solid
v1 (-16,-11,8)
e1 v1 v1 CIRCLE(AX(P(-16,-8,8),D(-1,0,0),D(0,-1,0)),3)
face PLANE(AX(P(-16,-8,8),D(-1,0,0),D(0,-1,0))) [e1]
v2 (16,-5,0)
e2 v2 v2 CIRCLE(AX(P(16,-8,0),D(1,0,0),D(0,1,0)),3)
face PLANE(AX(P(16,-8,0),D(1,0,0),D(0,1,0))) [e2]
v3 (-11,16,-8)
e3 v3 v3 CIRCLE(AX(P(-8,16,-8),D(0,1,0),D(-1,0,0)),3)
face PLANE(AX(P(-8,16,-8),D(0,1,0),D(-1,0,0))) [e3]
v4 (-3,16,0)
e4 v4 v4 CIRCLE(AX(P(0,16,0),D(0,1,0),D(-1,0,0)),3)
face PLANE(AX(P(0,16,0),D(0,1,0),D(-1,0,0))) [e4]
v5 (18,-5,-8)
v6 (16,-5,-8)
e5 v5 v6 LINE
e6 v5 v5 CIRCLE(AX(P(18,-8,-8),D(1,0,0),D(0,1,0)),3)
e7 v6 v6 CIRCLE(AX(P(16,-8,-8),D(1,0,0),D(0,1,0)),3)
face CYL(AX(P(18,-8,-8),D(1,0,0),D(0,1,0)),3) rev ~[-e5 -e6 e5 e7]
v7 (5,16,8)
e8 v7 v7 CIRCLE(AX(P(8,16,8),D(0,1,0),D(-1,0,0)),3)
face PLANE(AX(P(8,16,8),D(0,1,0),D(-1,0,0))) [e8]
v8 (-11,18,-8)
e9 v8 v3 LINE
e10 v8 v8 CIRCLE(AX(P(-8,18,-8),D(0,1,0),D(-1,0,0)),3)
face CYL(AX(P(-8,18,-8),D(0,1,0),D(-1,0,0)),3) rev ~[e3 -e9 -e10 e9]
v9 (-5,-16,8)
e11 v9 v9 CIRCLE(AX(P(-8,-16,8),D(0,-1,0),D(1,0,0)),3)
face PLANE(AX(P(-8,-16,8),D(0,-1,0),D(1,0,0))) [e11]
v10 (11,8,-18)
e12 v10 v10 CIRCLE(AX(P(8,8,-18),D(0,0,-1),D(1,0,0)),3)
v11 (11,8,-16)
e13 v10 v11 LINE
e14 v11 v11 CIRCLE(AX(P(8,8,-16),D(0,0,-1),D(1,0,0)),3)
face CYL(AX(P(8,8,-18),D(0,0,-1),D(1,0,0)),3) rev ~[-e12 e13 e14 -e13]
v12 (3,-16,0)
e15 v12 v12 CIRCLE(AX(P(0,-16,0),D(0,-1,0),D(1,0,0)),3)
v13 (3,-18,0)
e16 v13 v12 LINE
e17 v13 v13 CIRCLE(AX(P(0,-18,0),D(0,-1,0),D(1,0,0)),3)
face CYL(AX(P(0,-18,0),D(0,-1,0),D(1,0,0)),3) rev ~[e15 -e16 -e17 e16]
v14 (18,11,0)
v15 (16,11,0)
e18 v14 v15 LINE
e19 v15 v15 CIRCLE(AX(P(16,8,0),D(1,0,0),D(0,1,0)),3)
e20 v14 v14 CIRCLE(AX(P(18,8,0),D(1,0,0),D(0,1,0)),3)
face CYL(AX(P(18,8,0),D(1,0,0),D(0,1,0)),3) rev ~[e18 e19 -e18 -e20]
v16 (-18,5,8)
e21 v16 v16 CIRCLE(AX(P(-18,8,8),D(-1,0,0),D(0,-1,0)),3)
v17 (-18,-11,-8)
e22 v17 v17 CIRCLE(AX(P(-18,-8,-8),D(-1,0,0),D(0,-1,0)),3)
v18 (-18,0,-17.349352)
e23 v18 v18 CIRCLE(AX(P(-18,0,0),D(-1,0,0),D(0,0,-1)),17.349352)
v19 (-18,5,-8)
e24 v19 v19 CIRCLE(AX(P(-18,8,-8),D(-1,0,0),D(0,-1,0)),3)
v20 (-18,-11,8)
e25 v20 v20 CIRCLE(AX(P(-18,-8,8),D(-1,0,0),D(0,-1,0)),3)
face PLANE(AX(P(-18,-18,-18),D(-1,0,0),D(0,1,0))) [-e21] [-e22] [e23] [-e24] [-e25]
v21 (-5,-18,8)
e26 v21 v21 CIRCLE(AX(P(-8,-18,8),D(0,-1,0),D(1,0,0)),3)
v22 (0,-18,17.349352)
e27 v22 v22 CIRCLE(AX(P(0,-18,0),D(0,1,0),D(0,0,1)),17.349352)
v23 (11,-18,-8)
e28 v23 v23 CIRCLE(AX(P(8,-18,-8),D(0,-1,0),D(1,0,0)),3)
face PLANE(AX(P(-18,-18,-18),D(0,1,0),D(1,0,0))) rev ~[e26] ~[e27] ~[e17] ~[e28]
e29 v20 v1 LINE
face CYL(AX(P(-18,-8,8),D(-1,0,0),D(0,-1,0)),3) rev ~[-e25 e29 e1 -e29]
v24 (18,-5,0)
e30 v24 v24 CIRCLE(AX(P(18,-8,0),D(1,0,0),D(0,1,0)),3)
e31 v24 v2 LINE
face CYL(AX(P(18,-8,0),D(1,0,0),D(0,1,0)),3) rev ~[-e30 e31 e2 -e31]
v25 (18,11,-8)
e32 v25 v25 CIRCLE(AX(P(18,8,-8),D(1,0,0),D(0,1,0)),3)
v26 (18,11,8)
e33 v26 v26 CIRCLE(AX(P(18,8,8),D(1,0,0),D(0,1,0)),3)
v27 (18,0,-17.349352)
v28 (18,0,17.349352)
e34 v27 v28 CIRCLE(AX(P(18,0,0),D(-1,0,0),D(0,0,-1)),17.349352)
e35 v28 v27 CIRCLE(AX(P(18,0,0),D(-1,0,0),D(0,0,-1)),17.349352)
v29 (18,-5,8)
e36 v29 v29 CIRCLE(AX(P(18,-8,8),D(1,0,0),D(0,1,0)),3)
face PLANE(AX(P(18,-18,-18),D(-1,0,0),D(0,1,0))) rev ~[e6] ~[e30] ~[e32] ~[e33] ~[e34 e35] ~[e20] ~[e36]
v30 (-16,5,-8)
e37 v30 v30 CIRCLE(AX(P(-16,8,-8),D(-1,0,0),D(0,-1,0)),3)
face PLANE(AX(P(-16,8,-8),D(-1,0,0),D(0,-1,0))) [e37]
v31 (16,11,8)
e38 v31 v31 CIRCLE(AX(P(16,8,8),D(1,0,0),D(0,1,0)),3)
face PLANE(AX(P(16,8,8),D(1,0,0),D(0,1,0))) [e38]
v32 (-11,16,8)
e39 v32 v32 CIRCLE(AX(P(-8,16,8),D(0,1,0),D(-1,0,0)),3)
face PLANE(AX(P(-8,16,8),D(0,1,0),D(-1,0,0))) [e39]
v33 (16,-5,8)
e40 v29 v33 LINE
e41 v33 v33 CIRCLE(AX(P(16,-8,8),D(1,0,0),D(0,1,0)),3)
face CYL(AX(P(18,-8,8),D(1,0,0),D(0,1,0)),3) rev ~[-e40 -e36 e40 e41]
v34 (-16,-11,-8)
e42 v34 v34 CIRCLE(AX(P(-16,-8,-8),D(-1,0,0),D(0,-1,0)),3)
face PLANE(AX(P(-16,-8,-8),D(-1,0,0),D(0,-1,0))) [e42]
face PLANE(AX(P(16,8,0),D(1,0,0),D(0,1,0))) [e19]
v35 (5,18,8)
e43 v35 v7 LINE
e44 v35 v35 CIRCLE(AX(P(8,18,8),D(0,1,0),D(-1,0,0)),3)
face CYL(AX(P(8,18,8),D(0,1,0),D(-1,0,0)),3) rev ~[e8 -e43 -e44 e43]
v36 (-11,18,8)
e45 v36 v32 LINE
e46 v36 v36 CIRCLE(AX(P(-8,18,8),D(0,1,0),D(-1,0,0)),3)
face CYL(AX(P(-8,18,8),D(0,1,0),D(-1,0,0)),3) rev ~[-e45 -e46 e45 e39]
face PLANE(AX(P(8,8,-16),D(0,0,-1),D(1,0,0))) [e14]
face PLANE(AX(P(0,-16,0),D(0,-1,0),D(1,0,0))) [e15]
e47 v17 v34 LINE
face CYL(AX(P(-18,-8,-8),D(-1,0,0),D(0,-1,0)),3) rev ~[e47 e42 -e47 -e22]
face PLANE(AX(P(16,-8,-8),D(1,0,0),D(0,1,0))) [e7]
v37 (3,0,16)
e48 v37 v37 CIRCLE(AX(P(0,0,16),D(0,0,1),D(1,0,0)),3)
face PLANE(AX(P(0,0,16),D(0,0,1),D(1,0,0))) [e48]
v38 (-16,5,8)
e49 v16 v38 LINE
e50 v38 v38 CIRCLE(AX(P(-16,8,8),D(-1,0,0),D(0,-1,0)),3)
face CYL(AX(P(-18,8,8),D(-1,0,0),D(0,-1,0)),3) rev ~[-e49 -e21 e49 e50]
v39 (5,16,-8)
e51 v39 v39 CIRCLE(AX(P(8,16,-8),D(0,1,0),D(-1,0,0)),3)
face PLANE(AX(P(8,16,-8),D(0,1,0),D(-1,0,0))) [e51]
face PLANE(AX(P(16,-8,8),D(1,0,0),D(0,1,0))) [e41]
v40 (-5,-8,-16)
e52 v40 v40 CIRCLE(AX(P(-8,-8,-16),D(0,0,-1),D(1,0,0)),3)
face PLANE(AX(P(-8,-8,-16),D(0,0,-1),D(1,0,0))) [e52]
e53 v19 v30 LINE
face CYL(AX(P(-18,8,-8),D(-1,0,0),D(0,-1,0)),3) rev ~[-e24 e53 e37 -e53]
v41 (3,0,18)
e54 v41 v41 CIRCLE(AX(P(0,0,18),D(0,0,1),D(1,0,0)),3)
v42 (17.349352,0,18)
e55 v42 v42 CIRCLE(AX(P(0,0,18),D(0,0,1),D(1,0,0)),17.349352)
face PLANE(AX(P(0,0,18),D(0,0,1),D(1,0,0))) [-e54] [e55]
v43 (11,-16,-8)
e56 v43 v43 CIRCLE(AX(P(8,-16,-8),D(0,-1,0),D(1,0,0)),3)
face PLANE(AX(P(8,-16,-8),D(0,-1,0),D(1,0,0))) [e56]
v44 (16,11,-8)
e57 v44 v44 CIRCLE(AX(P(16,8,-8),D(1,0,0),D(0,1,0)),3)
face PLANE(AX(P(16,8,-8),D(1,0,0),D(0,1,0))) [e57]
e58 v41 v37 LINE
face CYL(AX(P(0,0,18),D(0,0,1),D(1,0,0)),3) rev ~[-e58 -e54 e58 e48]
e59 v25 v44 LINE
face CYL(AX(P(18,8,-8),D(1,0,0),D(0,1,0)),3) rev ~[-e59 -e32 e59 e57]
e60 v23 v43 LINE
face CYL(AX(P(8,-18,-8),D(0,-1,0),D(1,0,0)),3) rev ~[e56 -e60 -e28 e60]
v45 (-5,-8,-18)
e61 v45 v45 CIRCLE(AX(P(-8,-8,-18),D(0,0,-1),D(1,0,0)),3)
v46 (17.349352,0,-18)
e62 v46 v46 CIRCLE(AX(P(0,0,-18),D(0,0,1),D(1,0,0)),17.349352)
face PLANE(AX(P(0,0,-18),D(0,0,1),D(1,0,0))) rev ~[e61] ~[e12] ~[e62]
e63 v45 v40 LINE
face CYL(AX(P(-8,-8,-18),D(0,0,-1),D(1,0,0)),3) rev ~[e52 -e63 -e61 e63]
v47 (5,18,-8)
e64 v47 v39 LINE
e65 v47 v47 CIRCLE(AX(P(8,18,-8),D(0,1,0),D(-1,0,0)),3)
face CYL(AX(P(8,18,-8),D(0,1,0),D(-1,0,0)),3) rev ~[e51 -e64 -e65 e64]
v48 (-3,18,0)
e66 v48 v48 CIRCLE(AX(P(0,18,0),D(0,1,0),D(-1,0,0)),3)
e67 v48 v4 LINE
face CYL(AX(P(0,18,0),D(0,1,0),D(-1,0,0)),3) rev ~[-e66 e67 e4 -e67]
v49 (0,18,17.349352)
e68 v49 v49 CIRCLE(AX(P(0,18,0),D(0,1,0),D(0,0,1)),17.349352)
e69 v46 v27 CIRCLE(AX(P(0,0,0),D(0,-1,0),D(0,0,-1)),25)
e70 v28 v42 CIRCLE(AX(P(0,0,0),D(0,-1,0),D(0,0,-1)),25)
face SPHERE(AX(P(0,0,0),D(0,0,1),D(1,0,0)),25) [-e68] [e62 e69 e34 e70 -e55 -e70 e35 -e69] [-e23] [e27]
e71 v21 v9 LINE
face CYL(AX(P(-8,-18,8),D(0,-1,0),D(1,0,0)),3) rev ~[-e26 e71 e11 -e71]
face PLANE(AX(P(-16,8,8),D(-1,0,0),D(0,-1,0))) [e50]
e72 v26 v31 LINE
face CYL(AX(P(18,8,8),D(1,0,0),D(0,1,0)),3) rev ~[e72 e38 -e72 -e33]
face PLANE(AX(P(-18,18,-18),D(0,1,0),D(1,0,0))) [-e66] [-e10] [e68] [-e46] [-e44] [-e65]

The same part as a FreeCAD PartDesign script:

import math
import FreeCAD as App
import Part
import Sketcher
from FreeCAD import Vector

doc = App.newDocument("Part")
body = doc.addObject("PartDesign::Body", "Body")

# Sketch on XZ plane
sketch1 = body.newObject("Sketcher::SketchObject", "Sketch")
sketch1.AttachmentSupport = (doc.getObject("XZ_Plane"), [""])
sketch1.MapMode = "FlatFace"
sketch1.addGeometry([
    Part.ArcOfCircle(Part.Circle(Vector(0, 0, 0), Vector(0, 0, 1), 25), math.radians(-90), math.radians(90)),
    Part.LineSegment(Vector(0, 25, 0), Vector(0, -25, 0)),
], False)
sketch1.addConstraint([
    Sketcher.Constraint("Coincident", 0, 1, 1, 2),
    Sketcher.Constraint("Coincident", 1, 1, 0, 2),
    Sketcher.Constraint("Vertical", 1),
    Sketcher.Constraint("Coincident", 0, 3, -1, 1),
    Sketcher.Constraint("PointOnObject", 0, 1, -2),
    Sketcher.Constraint("Radius", 0, 25.0),
])
revolution = body.newObject("PartDesign::Revolution", "Revolution")
revolution.Profile = sketch1
revolution.ReferenceAxis = (sketch1, ["V_Axis"])
revolution.Angle = 360
body2 = doc.addObject("PartDesign::Body", "Body001")

# Sketch on XY plane
sketch2 = body2.newObject("Sketcher::SketchObject", "Sketch001")
sketch2.AttachmentSupport = (doc.getObject("XY_Plane001"), [""])
sketch2.MapMode = "FlatFace"
sketch2.AttachmentOffset = App.Placement(Vector(0, 0, -18), App.Rotation())
sketch2.addGeometry([
    Part.LineSegment(Vector(-18, 18, 0), Vector(-18, -18, 0)),
    Part.LineSegment(Vector(-18, -18, 0), Vector(18, -18, 0)),
    Part.LineSegment(Vector(18, -18, 0), Vector(18, 18, 0)),
    Part.LineSegment(Vector(18, 18, 0), Vector(-18, 18, 0)),
], False)
sketch2.addConstraint([
    Sketcher.Constraint("Coincident", 0, 2, 1, 1),
    Sketcher.Constraint("Coincident", 1, 2, 2, 1),
    Sketcher.Constraint("Coincident", 2, 2, 3, 1),
    Sketcher.Constraint("Coincident", 3, 2, 0, 1),
    Sketcher.Constraint("Vertical", 0),
    Sketcher.Constraint("Horizontal", 1),
    Sketcher.Constraint("Vertical", 2),
    Sketcher.Constraint("Horizontal", 3),
    Sketcher.Constraint("Symmetric", 0, 2, 2, 2, -1, 1),
    Sketcher.Constraint("Equal", 3, 0),
    Sketcher.Constraint("DistanceX", 1, 1, 1, 2, 36.0),
])
pad1 = body2.newObject("PartDesign::Pad", "Pad")
pad1.Profile = sketch2
pad1.Length = 36
doc.recompute()

boolean = body2.newObject("PartDesign::Boolean", "Boolean")
boolean.Type = "Common"
boolean.addObjects([body])

# Sketch on YZ plane
sketch3 = body2.newObject("Sketcher::SketchObject", "Sketch002")
sketch3.AttachmentSupport = (doc.getObject("YZ_Plane001"), [""])
sketch3.MapMode = "FlatFace"
sketch3.AttachmentOffset = App.Placement(Vector(0, 0, 18), App.Rotation())
sketch3.addGeometry([
    Part.Circle(Vector(-8, 8, 0), Vector(0, 0, 1), 3),  # 0
    Part.Circle(Vector(-8, -8, 0), Vector(0, 0, 1), 3),  # 1
    Part.Circle(Vector(8, 8, 0), Vector(0, 0, 1), 3),  # 2
    Part.Circle(Vector(8, -8, 0), Vector(0, 0, 1), 3),  # 3
    Part.Circle(Vector(-8, 0, 0), Vector(0, 0, 1), 3),  # 4
    Part.Circle(Vector(8, 0, 0), Vector(0, 0, 1), 3),  # 5
], False)
sketch3.addConstraint([
    Sketcher.Constraint("Equal", 0, 1),
    Sketcher.Constraint("Equal", 1, 2),
    Sketcher.Constraint("Equal", 2, 3),
    Sketcher.Constraint("Equal", 3, 4),
    Sketcher.Constraint("Equal", 4, 5),
    Sketcher.Constraint("Symmetric", 1, 3, 2, 3, -1, 1),
    Sketcher.Constraint("Symmetric", 0, 3, 3, 3, -1, 1),
    Sketcher.Constraint("Symmetric", 4, 3, 5, 3, -1, 1),
    Sketcher.Constraint("Symmetric", 0, 3, 2, 3, -2),
    Sketcher.Constraint("PointOnObject", 4, 3, -1),
    Sketcher.Constraint("Vertical", 1, 3, 4, 3),
    Sketcher.Constraint("Diameter", 0, 6.0),
    Sketcher.Constraint("DistanceX", 0, 3, -1, 1, 8.0),
    Sketcher.Constraint("DistanceY", -1, 1, 0, 3, 8.0),
])
pocket1 = body2.newObject("PartDesign::Pocket", "Pocket")
pocket1.Profile = sketch3
pocket1.Length = 2

# Sketch on XZ plane
sketch4 = body2.newObject("Sketcher::SketchObject", "Sketch003")
sketch4.AttachmentSupport = (doc.getObject("XZ_Plane001"), [""])
sketch4.MapMode = "FlatFace"
sketch4.AttachmentOffset = App.Placement(Vector(0, 0, -18), App.Rotation())
sketch4.addGeometry([
    Part.Circle(Vector(-8, 8, 0), Vector(0, 0, 1), 3),  # 0
    Part.Circle(Vector(8, 8, 0), Vector(0, 0, 1), 3),  # 1
    Part.Circle(Vector(8, -8, 0), Vector(0, 0, 1), 3),  # 2
    Part.Circle(Vector(-8, -8, 0), Vector(0, 0, 1), 3),  # 3
    Part.Circle(Vector(0, 0, 0), Vector(0, 0, 1), 3),  # 4
], False)
sketch4.addConstraint([
    Sketcher.Constraint("Coincident", 4, 3, -1, 1),
    Sketcher.Constraint("Equal", 0, 1),
    Sketcher.Constraint("Equal", 1, 2),
    Sketcher.Constraint("Equal", 2, 3),
    Sketcher.Constraint("Equal", 3, 4),
    Sketcher.Constraint("Symmetric", 0, 3, 2, 3, -1, 1),
    Sketcher.Constraint("Symmetric", 1, 3, 3, 3, -1, 1),
    Sketcher.Constraint("Symmetric", 0, 3, 1, 3, -2),
    Sketcher.Constraint("Diameter", 0, 6.0),
    Sketcher.Constraint("DistanceX", 0, 3, -1, 1, 8.0),
    Sketcher.Constraint("DistanceY", -1, 1, 0, 3, 8.0),
])
pocket2 = body2.newObject("PartDesign::Pocket", "Pocket001")
pocket2.Profile = sketch4
pocket2.Length = 2
pocket2.Reversed = True

# Sketch on YZ plane
sketch5 = body2.newObject("Sketcher::SketchObject", "Sketch004")
sketch5.AttachmentSupport = (doc.getObject("YZ_Plane001"), [""])
sketch5.MapMode = "FlatFace"
sketch5.AttachmentOffset = App.Placement(Vector(0, 0, -18), App.Rotation())
sketch5.addGeometry([
    Part.Circle(Vector(8, 8, 0), Vector(0, 0, 1), 3),
    Part.Circle(Vector(-8, 8, 0), Vector(0, 0, 1), 3),
    Part.Circle(Vector(-8, -8, 0), Vector(0, 0, 1), 3),
    Part.Circle(Vector(8, -8, 0), Vector(0, 0, 1), 3),
], False)
sketch5.addConstraint([
    Sketcher.Constraint("Equal", 0, 1),
    Sketcher.Constraint("Equal", 1, 2),
    Sketcher.Constraint("Equal", 2, 3),
    Sketcher.Constraint("Symmetric", 0, 3, 2, 3, -1, 1),
    Sketcher.Constraint("Symmetric", 1, 3, 3, 3, -1, 1),
    Sketcher.Constraint("Symmetric", 0, 3, 1, 3, -2),
    Sketcher.Constraint("Diameter", 0, 6.0),
    Sketcher.Constraint("DistanceX", -1, 1, 0, 3, 8.0),
    Sketcher.Constraint("DistanceY", -1, 1, 0, 3, 8.0),
])
pocket3 = body2.newObject("PartDesign::Pocket", "Pocket002")
pocket3.Profile = sketch5
pocket3.Length = 2
pocket3.Reversed = True

# Sketch on XZ plane
sketch6 = body2.newObject("Sketcher::SketchObject", "Sketch005")
sketch6.AttachmentSupport = (doc.getObject("XZ_Plane001"), [""])
sketch6.MapMode = "FlatFace"
sketch6.AttachmentOffset = App.Placement(Vector(0, 0, 18), App.Rotation())
sketch6.addGeometry([
    Part.Circle(Vector(-8, 8, 0), Vector(0, 0, 1), 3),
    Part.Circle(Vector(0, 0, 0), Vector(0, 0, 1), 3),
    Part.Circle(Vector(8, -8, 0), Vector(0, 0, 1), 3),
], False)
sketch6.addConstraint([
    Sketcher.Constraint("Coincident", 1, 3, -1, 1),
    Sketcher.Constraint("Equal", 0, 1),
    Sketcher.Constraint("Equal", 1, 2),
    Sketcher.Constraint("Symmetric", 0, 3, 2, 3, -1, 1),
    Sketcher.Constraint("Diameter", 0, 6.0),
    Sketcher.Constraint("DistanceX", 0, 3, -1, 1, 8.0),
    Sketcher.Constraint("DistanceY", -1, 1, 0, 3, 8.0),
])
pocket4 = body2.newObject("PartDesign::Pocket", "Pocket003")
pocket4.Profile = sketch6
pocket4.Length = 2

# Sketch on XY plane
sketch7 = body2.newObject("Sketcher::SketchObject", "Sketch006")
sketch7.AttachmentSupport = (doc.getObject("XY_Plane001"), [""])
sketch7.MapMode = "FlatFace"
sketch7.AttachmentOffset = App.Placement(Vector(0, 0, -18), App.Rotation())
sketch7.addGeometry([
    Part.Circle(Vector(-8, -8, 0), Vector(0, 0, 1), 3),
    Part.Circle(Vector(8, 8, 0), Vector(0, 0, 1), 3),
], False)
sketch7.addConstraint([
    Sketcher.Constraint("Equal", 0, 1),
    Sketcher.Constraint("Symmetric", 0, 3, 1, 3, -1, 1),
    Sketcher.Constraint("Diameter", 0, 6.0),
    Sketcher.Constraint("DistanceX", 0, 3, -1, 1, 8.0),
    Sketcher.Constraint("DistanceY", 0, 3, -1, 1, 8.0),
])
pocket5 = body2.newObject("PartDesign::Pocket", "Pocket004")
pocket5.Profile = sketch7
pocket5.Length = 2
pocket5.Reversed = True

# Sketch on XY plane
sketch8 = body2.newObject("Sketcher::SketchObject", "Sketch007")
sketch8.AttachmentSupport = (doc.getObject("XY_Plane001"), [""])
sketch8.MapMode = "FlatFace"
sketch8.AttachmentOffset = App.Placement(Vector(0, 0, 18), App.Rotation())
sketch8.addGeometry(Part.Circle(Vector(0, 0, 0), Vector(0, 0, 1), 3), False)
sketch8.addConstraint([
    Sketcher.Constraint("Coincident", 0, 3, -1, 1),
    Sketcher.Constraint("Diameter", 0, 6.0),
])
pocket6 = body2.newObject("PartDesign::Pocket", "Pocket005")
pocket6.Profile = sketch8
pocket6.Length = 2

doc.recompute()
